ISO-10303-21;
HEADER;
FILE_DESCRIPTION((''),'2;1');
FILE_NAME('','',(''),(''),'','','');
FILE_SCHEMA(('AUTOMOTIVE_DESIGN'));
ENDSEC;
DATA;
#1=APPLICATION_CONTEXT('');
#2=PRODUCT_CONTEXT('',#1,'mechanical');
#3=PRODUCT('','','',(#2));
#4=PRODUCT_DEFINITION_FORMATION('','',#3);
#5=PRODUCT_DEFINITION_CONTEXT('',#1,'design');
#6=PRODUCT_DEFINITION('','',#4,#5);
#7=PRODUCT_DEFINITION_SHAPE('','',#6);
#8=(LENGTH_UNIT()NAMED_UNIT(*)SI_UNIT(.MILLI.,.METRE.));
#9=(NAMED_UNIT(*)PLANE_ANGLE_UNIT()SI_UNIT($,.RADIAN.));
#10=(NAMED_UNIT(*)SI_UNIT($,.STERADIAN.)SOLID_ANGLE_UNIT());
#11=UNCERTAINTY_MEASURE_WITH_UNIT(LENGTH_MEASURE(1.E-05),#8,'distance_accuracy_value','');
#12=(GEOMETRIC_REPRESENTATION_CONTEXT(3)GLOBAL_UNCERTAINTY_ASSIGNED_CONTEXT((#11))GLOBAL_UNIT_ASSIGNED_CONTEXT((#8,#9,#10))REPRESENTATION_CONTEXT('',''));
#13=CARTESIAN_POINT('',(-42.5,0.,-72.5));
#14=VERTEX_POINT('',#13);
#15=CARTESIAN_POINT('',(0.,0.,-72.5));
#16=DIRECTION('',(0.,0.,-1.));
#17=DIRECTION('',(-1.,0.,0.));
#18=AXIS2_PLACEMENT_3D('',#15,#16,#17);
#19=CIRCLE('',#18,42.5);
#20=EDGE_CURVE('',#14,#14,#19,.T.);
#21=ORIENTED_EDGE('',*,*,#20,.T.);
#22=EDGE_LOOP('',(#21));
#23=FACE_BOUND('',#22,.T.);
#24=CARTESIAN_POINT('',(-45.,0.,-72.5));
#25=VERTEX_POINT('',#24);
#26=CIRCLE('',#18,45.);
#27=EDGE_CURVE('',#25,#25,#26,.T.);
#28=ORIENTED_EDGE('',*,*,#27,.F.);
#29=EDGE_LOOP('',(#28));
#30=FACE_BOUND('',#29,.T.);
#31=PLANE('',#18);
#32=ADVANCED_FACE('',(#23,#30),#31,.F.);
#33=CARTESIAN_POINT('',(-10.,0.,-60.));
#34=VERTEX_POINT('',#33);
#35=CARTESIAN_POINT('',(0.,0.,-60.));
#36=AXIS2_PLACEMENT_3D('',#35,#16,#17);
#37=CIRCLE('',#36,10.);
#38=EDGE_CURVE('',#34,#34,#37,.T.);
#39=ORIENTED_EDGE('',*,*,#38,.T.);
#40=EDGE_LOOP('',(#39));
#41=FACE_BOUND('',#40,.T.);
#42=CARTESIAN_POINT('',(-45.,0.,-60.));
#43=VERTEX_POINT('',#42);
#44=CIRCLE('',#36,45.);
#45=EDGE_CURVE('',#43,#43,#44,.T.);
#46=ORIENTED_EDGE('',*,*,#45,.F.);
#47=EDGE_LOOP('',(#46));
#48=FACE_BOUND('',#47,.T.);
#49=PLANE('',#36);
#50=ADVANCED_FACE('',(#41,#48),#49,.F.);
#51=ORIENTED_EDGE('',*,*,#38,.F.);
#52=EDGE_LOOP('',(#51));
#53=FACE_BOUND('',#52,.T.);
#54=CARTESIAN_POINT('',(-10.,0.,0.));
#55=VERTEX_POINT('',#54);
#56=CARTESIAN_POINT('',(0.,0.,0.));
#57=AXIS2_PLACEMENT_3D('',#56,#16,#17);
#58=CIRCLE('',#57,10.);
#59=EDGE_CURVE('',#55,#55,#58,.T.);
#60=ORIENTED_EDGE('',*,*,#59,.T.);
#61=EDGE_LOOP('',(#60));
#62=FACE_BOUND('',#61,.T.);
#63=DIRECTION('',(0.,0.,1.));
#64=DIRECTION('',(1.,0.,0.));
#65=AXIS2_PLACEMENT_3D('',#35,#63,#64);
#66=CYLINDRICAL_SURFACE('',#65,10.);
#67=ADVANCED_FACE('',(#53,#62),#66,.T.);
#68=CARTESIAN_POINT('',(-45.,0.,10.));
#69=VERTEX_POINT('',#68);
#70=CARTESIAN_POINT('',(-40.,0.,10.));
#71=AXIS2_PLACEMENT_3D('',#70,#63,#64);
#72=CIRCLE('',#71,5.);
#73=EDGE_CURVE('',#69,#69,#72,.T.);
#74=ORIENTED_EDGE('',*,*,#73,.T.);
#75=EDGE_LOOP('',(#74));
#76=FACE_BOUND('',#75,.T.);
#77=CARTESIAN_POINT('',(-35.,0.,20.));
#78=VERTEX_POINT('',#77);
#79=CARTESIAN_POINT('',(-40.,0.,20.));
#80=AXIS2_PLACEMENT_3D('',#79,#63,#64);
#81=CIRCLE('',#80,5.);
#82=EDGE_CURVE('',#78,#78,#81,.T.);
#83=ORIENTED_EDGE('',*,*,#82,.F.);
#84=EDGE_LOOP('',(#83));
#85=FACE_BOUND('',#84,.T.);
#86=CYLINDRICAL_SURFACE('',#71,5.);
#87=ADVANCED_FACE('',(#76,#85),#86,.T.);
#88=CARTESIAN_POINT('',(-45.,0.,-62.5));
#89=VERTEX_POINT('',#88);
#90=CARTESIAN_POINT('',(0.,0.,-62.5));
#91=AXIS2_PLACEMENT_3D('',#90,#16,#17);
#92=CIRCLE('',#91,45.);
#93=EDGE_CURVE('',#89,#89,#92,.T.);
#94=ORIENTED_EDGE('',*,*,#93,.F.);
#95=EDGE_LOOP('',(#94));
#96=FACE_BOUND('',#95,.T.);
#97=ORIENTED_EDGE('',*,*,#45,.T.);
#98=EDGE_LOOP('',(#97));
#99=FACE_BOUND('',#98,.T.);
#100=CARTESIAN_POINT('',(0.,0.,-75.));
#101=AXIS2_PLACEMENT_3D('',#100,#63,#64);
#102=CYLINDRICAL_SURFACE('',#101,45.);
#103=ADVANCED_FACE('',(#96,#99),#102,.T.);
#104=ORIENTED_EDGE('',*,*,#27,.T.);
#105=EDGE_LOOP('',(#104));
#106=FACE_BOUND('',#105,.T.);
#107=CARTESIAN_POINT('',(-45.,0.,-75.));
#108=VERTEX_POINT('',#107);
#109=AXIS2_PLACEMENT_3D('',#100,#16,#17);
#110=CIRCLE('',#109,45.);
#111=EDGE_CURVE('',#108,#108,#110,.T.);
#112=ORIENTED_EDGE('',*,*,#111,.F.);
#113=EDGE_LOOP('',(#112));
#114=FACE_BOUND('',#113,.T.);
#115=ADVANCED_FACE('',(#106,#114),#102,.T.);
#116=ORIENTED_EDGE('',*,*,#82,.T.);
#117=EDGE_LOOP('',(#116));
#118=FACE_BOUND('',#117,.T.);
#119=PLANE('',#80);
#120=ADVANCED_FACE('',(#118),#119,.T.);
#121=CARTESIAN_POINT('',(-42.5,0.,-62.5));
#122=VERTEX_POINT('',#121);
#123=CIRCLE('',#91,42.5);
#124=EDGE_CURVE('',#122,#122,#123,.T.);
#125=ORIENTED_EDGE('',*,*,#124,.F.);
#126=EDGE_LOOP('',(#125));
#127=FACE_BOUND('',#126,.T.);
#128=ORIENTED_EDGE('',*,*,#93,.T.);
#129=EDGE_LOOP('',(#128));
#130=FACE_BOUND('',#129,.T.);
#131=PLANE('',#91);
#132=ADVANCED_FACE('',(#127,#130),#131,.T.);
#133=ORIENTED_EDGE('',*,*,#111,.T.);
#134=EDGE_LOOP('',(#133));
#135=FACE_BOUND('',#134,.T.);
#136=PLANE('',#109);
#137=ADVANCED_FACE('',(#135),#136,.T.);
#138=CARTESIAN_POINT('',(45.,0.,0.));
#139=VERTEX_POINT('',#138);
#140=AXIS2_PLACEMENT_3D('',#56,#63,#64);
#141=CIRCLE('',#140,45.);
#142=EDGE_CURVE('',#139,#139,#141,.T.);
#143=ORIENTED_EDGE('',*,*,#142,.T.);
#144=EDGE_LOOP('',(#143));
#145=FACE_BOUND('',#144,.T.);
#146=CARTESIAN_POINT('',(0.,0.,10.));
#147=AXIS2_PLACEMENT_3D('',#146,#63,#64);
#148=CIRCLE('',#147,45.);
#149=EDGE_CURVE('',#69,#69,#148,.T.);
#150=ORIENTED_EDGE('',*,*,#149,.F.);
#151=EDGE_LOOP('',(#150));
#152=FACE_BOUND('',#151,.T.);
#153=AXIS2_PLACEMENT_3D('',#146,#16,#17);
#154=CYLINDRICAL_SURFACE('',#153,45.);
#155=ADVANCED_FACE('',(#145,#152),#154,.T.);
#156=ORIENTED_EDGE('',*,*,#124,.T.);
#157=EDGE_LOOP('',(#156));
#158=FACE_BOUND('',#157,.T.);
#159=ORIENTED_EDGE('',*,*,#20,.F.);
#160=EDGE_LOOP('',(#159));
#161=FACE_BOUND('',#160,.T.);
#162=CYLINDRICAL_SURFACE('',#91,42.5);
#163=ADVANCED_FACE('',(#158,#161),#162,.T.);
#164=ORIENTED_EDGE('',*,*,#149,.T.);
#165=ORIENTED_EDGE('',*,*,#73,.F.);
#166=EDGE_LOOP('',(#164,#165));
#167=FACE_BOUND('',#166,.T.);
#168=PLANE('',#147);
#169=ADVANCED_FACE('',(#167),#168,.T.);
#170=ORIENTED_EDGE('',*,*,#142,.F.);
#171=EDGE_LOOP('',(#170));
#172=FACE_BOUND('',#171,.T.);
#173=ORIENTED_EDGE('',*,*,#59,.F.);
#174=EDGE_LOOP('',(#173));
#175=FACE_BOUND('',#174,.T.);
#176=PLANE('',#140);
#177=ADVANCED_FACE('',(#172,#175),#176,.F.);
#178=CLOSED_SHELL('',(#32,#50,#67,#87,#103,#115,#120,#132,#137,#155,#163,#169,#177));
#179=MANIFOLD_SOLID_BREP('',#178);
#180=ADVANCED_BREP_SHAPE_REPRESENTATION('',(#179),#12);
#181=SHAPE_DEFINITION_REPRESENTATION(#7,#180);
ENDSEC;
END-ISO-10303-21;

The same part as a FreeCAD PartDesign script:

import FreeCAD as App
import Part
import Sketcher
from FreeCAD import Vector
Q = App.Units.Quantity

doc = App.newDocument("Part")
body = doc.addObject("PartDesign::Body", "Body")

# Sketch on XY plane
sketch1 = doc.addObject("Sketcher::SketchObject", "Sketch")
body.addObject(sketch1)
sketch1.AttachmentSupport = (doc.XY_Plane, [""])
sketch1.MapMode = "FlatFace"
sketch1.addGeometry(Part.Circle(Vector(0, 0, 0), Vector(0, 0, 1), 45), False)
sketch1.addConstraint([
    Sketcher.Constraint("Coincident", 0, 3, -1, 1),
    Sketcher.Constraint("Diameter", 0, Q("90 mm")),
])
pad1 = doc.addObject("PartDesign::Pad", "Pad")
body.addObject(pad1)
pad1.Profile = sketch1
pad1.Length = 10

# Sketch on XY plane
sketch2 = doc.addObject("Sketcher::SketchObject", "Sketch001")
body.addObject(sketch2)
sketch2.AttachmentSupport = (doc.XY_Plane, [""])
sketch2.MapMode = "FlatFace"
sketch2.AttachmentOffset = App.Placement(Vector(0, 0, 20), App.Rotation())
sketch2.addGeometry(Part.Circle(Vector(-40, 0, 0), Vector(0, 0, 1), 5), False)
sketch2.addConstraint([
    Sketcher.Constraint("PointOnObject", 0, 3, -1),
    Sketcher.Constraint("Diameter", 0, Q("10 mm")),
    Sketcher.Constraint("DistanceX", 0, 3, -1, 1, Q("40 mm")),
])
pad2 = doc.addObject("PartDesign::Pad", "Pad001")
body.addObject(pad2)
pad2.Profile = sketch2
pad2.Length = 10
pad2.Reversed = True

# Sketch on XY plane
sketch3 = doc.addObject("Sketcher::SketchObject", "Sketch002")
body.addObject(sketch3)
sketch3.AttachmentSupport = (doc.XY_Plane, [""])
sketch3.MapMode = "FlatFace"
sketch3.addGeometry(Part.Circle(Vector(0, 0, 0), Vector(0, 0, 1), 10), False)
sketch3.addConstraint([
    Sketcher.Constraint("Coincident", 0, 3, -1, 1),
    Sketcher.Constraint("Diameter", 0, Q("20 mm")),
])
pad3 = doc.addObject("PartDesign::Pad", "Pad002")
body.addObject(pad3)
pad3.Profile = sketch3
pad3.Length = 60
pad3.Reversed = True

# Sketch on XY plane
sketch4 = doc.addObject("Sketcher::SketchObject", "Sketch003")
body.addObject(sketch4)
sketch4.AttachmentSupport = (doc.XY_Plane, [""])
sketch4.MapMode = "FlatFace"
sketch4.AttachmentOffset = App.Placement(Vector(0, 0, -75), App.Rotation())
sketch4.addGeometry(Part.Circle(Vector(0, 0, 0), Vector(0, 0, 1), 45), False)
sketch4.addConstraint([
    Sketcher.Constraint("Coincident", 0, 3, -1, 1),
    Sketcher.Constraint("Diameter", 0, Q("90 mm")),
])
pad4 = doc.addObject("PartDesign::Pad", "Pad003")
body.addObject(pad4)
pad4.Profile = sketch4
pad4.Length = 15

# Sketch on XY plane
sketch5 = doc.addObject("Sketcher::SketchObject", "Sketch004")
body.addObject(sketch5)
sketch5.AttachmentSupport = (doc.XY_Plane, [""])
sketch5.MapMode = "FlatFace"
sketch5.AttachmentOffset = App.Placement(Vector(0, 0, -72.5), App.Rotation())
sketch5.addGeometry([
    Part.Circle(Vector(0, 0, 0), Vector(0, 0, 1), 45),
    Part.Circle(Vector(0, 0, 0), Vector(0, 0, 1), 42),
], False)
sketch5.addConstraint([
    Sketcher.Constraint("Coincident", 0, 3, -1, 1),
    Sketcher.Constraint("Coincident", 1, 3, -1, 1),
    Sketcher.Constraint("Diameter", 0, Q("90 mm")),
    Sketcher.Constraint("Diameter", 1, Q("85 mm")),
])
pocket1 = doc.addObject("PartDesign::Pocket", "Pocket")
body.addObject(pocket1)
pocket1.Profile = sketch5
pocket1.Length = 10
pocket1.Reversed = True

doc.recompute()
